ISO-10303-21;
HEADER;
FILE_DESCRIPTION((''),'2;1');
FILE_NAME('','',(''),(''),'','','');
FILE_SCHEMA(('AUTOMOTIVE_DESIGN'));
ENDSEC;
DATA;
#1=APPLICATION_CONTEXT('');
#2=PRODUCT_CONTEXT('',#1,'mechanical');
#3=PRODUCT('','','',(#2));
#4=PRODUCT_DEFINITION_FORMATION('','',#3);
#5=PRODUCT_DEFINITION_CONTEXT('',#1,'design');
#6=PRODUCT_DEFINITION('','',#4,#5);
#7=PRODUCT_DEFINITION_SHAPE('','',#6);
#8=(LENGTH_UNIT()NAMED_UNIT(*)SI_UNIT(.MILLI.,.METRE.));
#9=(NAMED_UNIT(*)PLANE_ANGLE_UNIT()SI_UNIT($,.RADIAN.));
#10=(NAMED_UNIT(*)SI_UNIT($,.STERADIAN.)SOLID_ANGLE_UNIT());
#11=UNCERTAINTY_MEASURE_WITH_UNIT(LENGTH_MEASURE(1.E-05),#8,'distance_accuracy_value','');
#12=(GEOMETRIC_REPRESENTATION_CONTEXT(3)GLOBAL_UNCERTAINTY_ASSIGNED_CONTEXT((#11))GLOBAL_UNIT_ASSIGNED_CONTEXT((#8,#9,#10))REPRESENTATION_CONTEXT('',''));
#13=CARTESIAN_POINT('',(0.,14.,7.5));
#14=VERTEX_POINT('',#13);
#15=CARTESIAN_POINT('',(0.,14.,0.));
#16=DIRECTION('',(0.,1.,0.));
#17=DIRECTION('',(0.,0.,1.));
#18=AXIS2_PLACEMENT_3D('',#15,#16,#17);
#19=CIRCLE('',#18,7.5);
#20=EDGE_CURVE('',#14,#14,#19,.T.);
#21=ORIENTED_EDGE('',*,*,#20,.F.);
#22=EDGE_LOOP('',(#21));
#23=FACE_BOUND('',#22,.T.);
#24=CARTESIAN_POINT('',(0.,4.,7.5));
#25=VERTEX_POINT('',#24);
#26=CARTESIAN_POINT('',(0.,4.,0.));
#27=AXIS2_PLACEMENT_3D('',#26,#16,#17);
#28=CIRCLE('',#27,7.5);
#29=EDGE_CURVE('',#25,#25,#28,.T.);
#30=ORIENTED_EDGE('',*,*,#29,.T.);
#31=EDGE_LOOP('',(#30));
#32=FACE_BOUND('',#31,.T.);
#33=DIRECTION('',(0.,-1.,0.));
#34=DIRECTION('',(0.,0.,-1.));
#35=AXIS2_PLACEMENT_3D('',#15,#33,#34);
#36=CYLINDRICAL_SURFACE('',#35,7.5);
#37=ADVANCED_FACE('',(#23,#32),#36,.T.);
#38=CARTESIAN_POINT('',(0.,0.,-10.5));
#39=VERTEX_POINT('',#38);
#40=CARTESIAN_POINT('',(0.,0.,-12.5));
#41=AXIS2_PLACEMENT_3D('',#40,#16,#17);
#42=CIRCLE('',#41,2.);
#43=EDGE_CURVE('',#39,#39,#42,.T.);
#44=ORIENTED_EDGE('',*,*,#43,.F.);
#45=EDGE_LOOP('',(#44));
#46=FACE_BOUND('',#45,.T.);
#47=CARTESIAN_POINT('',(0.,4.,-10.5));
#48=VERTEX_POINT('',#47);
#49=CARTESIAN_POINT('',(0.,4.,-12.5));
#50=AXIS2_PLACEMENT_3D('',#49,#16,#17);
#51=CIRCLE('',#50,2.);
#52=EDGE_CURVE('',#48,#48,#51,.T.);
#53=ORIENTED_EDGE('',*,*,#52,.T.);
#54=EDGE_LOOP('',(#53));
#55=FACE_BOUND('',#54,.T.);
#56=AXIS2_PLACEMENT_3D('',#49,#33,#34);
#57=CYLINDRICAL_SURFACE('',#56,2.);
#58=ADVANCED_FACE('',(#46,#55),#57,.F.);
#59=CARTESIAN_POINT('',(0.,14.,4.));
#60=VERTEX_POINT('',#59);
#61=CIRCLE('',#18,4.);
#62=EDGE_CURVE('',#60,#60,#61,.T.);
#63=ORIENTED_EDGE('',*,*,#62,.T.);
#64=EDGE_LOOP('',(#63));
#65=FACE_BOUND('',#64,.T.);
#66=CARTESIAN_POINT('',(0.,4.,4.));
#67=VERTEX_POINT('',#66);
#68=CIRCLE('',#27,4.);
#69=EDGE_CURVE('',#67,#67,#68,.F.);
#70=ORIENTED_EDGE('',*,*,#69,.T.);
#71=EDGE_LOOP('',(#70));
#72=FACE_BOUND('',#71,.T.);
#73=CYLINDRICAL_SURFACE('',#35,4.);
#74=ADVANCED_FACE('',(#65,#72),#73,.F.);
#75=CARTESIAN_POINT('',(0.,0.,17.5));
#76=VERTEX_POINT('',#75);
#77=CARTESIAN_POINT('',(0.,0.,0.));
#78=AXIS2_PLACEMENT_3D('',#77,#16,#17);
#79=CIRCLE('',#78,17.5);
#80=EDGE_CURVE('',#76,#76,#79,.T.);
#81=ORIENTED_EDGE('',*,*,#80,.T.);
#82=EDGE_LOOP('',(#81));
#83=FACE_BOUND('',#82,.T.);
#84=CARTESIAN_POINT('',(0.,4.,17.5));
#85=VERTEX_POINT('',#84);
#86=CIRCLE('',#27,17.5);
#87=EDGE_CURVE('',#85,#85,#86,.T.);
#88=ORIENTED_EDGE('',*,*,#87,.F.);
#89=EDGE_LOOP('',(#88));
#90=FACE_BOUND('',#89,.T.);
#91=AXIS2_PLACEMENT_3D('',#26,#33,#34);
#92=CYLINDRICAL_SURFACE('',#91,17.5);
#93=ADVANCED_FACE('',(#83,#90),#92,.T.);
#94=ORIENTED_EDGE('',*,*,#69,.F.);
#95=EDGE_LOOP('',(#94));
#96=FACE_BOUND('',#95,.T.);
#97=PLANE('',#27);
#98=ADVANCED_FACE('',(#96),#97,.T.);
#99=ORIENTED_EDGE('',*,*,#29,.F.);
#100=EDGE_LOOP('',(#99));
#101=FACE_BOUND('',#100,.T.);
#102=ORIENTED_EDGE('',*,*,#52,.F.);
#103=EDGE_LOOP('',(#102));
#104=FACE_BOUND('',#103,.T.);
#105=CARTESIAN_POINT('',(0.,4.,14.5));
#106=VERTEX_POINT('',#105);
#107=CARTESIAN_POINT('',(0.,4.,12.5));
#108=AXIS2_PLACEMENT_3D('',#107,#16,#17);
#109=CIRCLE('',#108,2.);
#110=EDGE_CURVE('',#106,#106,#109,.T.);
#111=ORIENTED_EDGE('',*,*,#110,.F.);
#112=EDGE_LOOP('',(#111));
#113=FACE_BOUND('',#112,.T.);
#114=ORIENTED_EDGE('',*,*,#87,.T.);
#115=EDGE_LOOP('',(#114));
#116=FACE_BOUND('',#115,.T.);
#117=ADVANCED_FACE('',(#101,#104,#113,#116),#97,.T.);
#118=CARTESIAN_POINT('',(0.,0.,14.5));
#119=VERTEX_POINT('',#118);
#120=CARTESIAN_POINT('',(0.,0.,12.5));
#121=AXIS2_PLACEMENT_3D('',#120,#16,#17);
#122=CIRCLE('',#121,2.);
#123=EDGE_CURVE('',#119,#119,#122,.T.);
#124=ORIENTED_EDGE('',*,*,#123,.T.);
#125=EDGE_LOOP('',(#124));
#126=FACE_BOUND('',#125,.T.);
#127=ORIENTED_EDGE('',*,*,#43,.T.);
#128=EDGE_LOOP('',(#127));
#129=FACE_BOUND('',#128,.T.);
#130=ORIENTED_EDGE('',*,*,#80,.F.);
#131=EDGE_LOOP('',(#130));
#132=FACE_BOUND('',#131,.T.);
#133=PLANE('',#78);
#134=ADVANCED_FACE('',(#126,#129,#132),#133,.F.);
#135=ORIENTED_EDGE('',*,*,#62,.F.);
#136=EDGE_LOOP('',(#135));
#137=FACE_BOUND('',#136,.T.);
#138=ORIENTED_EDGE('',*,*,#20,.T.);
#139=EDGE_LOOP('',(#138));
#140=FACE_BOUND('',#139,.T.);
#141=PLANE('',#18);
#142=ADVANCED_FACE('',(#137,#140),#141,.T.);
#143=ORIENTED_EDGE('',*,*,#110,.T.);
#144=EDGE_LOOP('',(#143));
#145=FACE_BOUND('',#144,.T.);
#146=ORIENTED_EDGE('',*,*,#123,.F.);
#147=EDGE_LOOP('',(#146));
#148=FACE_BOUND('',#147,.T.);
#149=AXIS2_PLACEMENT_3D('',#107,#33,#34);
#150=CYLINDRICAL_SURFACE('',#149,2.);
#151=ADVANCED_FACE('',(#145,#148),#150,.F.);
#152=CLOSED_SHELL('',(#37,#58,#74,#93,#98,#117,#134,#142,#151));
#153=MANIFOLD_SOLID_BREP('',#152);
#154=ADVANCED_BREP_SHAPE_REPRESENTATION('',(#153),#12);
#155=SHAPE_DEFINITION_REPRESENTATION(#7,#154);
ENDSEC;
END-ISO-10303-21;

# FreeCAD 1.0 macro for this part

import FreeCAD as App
import Part
import Sketcher

doc = App.newDocument("Part")
body = doc.addObject("PartDesign::Body", "Body")

# Sketch on XZ plane
sketch1 = body.newObject("Sketcher::SketchObject", "Sketch")
sketch1.AttachmentSupport = (doc.getObject("XZ_Plane"), [""])
sketch1.MapMode = "FlatFace"
sketch1.addGeometry([
    Part.Circle(App.Vector(0, 0, 0), App.Vector(0, 0, 1), 17.5),
    Part.Circle(App.Vector(0, 12.5, 0), App.Vector(0, 0, 1), 2),
    Part.Circle(App.Vector(0, -12.5, 0), App.Vector(0, 0, 1), 2),
], False)
sketch1.addConstraint([
    Sketcher.Constraint("Coincident", 0, 3, -1, 1),
    Sketcher.Constraint("Equal", 1, 2),
    Sketcher.Constraint("Symmetric", 1, 3, 2, 3, -1, 1),
    Sketcher.Constraint("PointOnObject", 1, 3, -2),
    Sketcher.Constraint("Diameter", 0, 35.0),
    Sketcher.Constraint("Diameter", 1, 4.0),
    Sketcher.Constraint("DistanceY", 2, 3, 1, 3, 25.0),
])
pad1 = body.newObject("PartDesign::Pad", "Pad")
pad1.Profile = sketch1
pad1.Length = 4
pad1.Reversed = True

# Sketch on XZ plane
sketch2 = body.newObject("Sketcher::SketchObject", "Sketch001")
sketch2.AttachmentSupport = (doc.getObject("XZ_Plane"), [""])
sketch2.MapMode = "FlatFace"
sketch2.AttachmentOffset = App.Placement(App.Vector(0, 0, -4), App.Rotation())
sketch2.addGeometry([
    Part.Circle(App.Vector(0, 0, 0), App.Vector(0, 0, 1), 7.5),
    Part.Circle(App.Vector(0, 0, 0), App.Vector(0, 0, 1), 4),
], False)
sketch2.addConstraint([
    Sketcher.Constraint("Coincident", 0, 3, -1, 1),
    Sketcher.Constraint("Coincident", 1, 3, -1, 1),
    Sketcher.Constraint("Diameter", 0, 15.0),
    Sketcher.Constraint("Diameter", 1, 8.0),
])
pad2 = body.newObject("PartDesign::Pad", "Pad001")
pad2.Profile = sketch2
pad2.Length = 10
pad2.Reversed = True

doc.recompute()
